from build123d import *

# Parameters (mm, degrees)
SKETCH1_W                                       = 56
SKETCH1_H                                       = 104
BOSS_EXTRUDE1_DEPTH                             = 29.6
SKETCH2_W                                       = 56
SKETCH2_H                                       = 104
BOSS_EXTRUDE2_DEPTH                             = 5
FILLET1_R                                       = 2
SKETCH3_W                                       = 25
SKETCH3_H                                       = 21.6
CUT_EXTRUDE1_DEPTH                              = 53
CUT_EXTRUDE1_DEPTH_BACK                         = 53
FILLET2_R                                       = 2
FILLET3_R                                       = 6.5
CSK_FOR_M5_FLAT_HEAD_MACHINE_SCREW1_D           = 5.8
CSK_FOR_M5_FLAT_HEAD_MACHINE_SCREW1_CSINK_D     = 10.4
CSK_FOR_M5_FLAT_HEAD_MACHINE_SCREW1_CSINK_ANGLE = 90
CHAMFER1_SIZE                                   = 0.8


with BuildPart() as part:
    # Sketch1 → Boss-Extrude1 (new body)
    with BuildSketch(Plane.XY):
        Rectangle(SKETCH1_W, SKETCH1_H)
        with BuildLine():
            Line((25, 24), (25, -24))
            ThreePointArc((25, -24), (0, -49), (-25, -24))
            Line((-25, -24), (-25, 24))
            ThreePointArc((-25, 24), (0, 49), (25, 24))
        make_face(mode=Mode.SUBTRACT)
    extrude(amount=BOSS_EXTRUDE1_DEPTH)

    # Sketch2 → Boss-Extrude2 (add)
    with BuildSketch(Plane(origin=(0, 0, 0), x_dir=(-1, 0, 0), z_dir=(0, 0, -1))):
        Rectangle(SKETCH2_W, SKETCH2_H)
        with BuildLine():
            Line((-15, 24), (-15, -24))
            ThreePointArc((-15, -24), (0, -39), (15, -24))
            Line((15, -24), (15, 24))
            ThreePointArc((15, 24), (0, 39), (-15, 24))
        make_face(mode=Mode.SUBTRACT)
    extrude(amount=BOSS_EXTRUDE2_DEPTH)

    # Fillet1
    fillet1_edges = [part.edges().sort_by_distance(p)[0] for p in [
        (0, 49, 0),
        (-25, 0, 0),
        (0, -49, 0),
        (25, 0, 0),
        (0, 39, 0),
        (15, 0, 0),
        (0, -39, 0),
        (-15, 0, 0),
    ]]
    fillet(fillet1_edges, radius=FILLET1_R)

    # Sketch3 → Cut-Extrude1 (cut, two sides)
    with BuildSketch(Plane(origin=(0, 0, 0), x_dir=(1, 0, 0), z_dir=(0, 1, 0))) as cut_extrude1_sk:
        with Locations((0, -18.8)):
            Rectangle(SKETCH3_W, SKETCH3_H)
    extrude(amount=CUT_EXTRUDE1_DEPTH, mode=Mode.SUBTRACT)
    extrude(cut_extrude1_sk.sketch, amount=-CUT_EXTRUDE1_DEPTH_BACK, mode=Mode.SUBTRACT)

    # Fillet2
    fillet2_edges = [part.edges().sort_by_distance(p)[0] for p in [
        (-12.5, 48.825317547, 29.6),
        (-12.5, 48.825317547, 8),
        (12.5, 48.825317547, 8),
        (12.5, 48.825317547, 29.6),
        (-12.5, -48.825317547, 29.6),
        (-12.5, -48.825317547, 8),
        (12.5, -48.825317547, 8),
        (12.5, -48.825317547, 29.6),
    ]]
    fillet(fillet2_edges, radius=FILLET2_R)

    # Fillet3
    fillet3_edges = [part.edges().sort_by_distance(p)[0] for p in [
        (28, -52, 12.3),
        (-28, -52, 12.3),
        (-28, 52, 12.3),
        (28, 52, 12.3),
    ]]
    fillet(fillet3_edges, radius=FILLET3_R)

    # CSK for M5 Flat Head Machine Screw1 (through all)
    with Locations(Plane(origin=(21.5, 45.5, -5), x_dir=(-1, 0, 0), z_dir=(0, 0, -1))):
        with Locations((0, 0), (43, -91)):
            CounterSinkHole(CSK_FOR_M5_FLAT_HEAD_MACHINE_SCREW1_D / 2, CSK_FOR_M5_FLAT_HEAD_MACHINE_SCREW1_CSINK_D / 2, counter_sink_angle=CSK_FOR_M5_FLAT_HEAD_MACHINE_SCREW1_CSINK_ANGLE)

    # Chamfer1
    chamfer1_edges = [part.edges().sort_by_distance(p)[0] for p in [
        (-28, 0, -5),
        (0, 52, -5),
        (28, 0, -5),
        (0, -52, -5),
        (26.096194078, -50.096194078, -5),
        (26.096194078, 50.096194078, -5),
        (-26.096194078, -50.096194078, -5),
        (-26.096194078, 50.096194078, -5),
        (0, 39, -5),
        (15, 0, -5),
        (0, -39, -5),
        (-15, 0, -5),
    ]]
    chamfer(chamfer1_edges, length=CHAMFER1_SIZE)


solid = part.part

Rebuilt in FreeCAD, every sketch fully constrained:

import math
import FreeCAD as App
import Part
import Sketcher

V = App.Vector


def edges_at(feature, points):
    """Names of the edges that pass closest to the given points."""
    edges = feature.Shape.Edges
    near = lambda p: min(range(len(edges)), key=lambda i: edges[i].distToShape(Part.Vertex(*p))[0])
    return sorted({f"Edge{near(p) + 1}" for p in points})

doc = App.newDocument("Part")
body = doc.addObject("PartDesign::Body", "Body")

# Sketch on XY plane
sketch1 = body.newObject("Sketcher::SketchObject", "Sketch")
sketch1.AttachmentSupport = (doc.getObject("XY_Plane"), [""])
sketch1.MapMode = "FlatFace"
sketch1.addGeometry(Part.LineSegment(V(-28, 52, 0), V(-28, -52, 0)), False)
sketch1.addGeometry(Part.LineSegment(V(-28, -52, 0), V(28, -52, 0)), False)
sketch1.addGeometry(Part.LineSegment(V(28, -52, 0), V(28, 52, 0)), False)
sketch1.addGeometry(Part.LineSegment(V(28, 52, 0), V(-28, 52, 0)), False)
sketch1.addGeometry(Part.ArcOfCircle(Part.Circle(V(0, 24, 0), V(0, 0, 1), 25), math.radians(0), math.radians(180)), False)
sketch1.addGeometry(Part.LineSegment(V(25, 24, 0), V(25, -24, 0)), False)
sketch1.addGeometry(Part.ArcOfCircle(Part.Circle(V(0, -24, 0), V(0, 0, 1), 25), math.radians(180), math.radians(360)), False)
sketch1.addGeometry(Part.LineSegment(V(-25, -24, 0), V(-25, 24, 0)), False)
sketch1.addConstraint(Sketcher.Constraint("Coincident", 0, 2, 1, 1))
sketch1.addConstraint(Sketcher.Constraint("Coincident", 1, 2, 2, 1))
sketch1.addConstraint(Sketcher.Constraint("Coincident", 2, 2, 3, 1))
sketch1.addConstraint(Sketcher.Constraint("Coincident", 3, 2, 0, 1))
sketch1.addConstraint(Sketcher.Constraint("Tangent", 4, 1, 5, 1))
sketch1.addConstraint(Sketcher.Constraint("Tangent", 5, 2, 6, 2))
sketch1.addConstraint(Sketcher.Constraint("Tangent", 6, 1, 7, 1))
sketch1.addConstraint(Sketcher.Constraint("Tangent", 7, 2, 4, 2))
sketch1.addConstraint(Sketcher.Constraint("Vertical", 0))
sketch1.addConstraint(Sketcher.Constraint("Horizontal", 1))
sketch1.addConstraint(Sketcher.Constraint("Vertical", 2))
sketch1.addConstraint(Sketcher.Constraint("Horizontal", 3))
sketch1.addConstraint(Sketcher.Constraint("Vertical", 5))
sketch1.addConstraint(Sketcher.Constraint("Vertical", 7))
sketch1.addConstraint(Sketcher.Constraint("Symmetric", 4, 3, 6, 3, -1, 1))
sketch1.addConstraint(Sketcher.Constraint("Symmetric", 0, 2, 2, 2, -1, 1))
sketch1.addConstraint(Sketcher.Constraint("Radius", 4, 25.0))
sketch1.addConstraint(Sketcher.Constraint("DistanceX", 1, 1, 1, 2, 56.0))
sketch1.addConstraint(Sketcher.Constraint("DistanceY", 0, 2, 0, 1, 104.0))
sketch1.addConstraint(Sketcher.Constraint("DistanceY", 5, 2, 5, 1, 48.0))
pad1 = body.newObject("PartDesign::Pad", "Pad")
pad1.Profile = sketch1
pad1.Length = 29.6

# Sketch on XY plane
sketch2 = body.newObject("Sketcher::SketchObject", "Sketch001")
sketch2.AttachmentSupport = (doc.getObject("XY_Plane"), [""])
sketch2.MapMode = "FlatFace"
sketch2.addGeometry(Part.LineSegment(V(28, 52, 0), V(28, -52, 0)), False)
sketch2.addGeometry(Part.LineSegment(V(28, -52, 0), V(-28, -52, 0)), False)
sketch2.addGeometry(Part.LineSegment(V(-28, -52, 0), V(-28, 52, 0)), False)
sketch2.addGeometry(Part.LineSegment(V(-28, 52, 0), V(28, 52, 0)), False)
sketch2.addGeometry(Part.LineSegment(V(15, -24, 0), V(15, 24, 0)), False)
sketch2.addGeometry(Part.ArcOfCircle(Part.Circle(V(0, 24, 0), V(0, 0, 1), 15), math.radians(0), math.radians(180)), False)
sketch2.addGeometry(Part.LineSegment(V(-15, 24, 0), V(-15, -24, 0)), False)
sketch2.addGeometry(Part.ArcOfCircle(Part.Circle(V(0, -24, 0), V(0, 0, 1), 15), math.radians(180), math.radians(360)), False)
sketch2.addConstraint(Sketcher.Constraint("Coincident", 0, 2, 1, 1))
sketch2.addConstraint(Sketcher.Constraint("Coincident", 1, 2, 2, 1))
sketch2.addConstraint(Sketcher.Constraint("Coincident", 2, 2, 3, 1))
sketch2.addConstraint(Sketcher.Constraint("Coincident", 3, 2, 0, 1))
sketch2.addConstraint(Sketcher.Constraint("Tangent", 4, 2, 5, 1))
sketch2.addConstraint(Sketcher.Constraint("Tangent", 5, 2, 6, 1))
sketch2.addConstraint(Sketcher.Constraint("Tangent", 6, 2, 7, 1))
sketch2.addConstraint(Sketcher.Constraint("Tangent", 7, 2, 4, 1))
sketch2.addConstraint(Sketcher.Constraint("Vertical", 0))
sketch2.addConstraint(Sketcher.Constraint("Horizontal", 1))
sketch2.addConstraint(Sketcher.Constraint("Vertical", 2))
sketch2.addConstraint(Sketcher.Constraint("Horizontal", 3))
sketch2.addConstraint(Sketcher.Constraint("Vertical", 4))
sketch2.addConstraint(Sketcher.Constraint("Vertical", 6))
sketch2.addConstraint(Sketcher.Constraint("Symmetric", 5, 3, 7, 3, -1, 1))
sketch2.addConstraint(Sketcher.Constraint("Symmetric", 0, 2, 2, 2, -1, 1))
sketch2.addConstraint(Sketcher.Constraint("Radius", 5, 15.0))
sketch2.addConstraint(Sketcher.Constraint("DistanceX", 1, 2, 1, 1, 56.0))
sketch2.addConstraint(Sketcher.Constraint("DistanceY", 0, 2, 0, 1, 104.0))
sketch2.addConstraint(Sketcher.Constraint("DistanceY", 4, 1, 4, 2, 48.0))
pad2 = body.newObject("PartDesign::Pad", "Pad001")
pad2.Profile = sketch2
pad2.Length = 5
pad2.Reversed = True
doc.recompute()

fillet = body.newObject("PartDesign::Fillet", "Fillet")
fillet.Base = (pad2, edges_at(pad2, [
    (0, 49, 0),
    (-25, 0, 0),
    (0, -49, 0),
    (25, 0, 0),
    (0, 39, 0),
    (15, 0, 0),
    (0, -39, 0),
    (-15, 0, 0),
]))
fillet.Radius = 2

# Sketch on XZ plane
sketch3 = body.newObject("Sketcher::SketchObject", "Sketch002")
sketch3.AttachmentSupport = (doc.getObject("XZ_Plane"), [""])
sketch3.MapMode = "FlatFace"
sketch3.addGeometry(Part.LineSegment(V(-12, 8, 0), V(-12, 30, 0)), False)
sketch3.addGeometry(Part.LineSegment(V(-12, 30, 0), V(12, 30, 0)), False)
sketch3.addGeometry(Part.LineSegment(V(12, 30, 0), V(12, 8, 0)), False)
sketch3.addGeometry(Part.LineSegment(V(12, 8, 0), V(-12, 8, 0)), False)
sketch3.addConstraint(Sketcher.Constraint("Coincident", 0, 2, 1, 1))
sketch3.addConstraint(Sketcher.Constraint("Coincident", 1, 2, 2, 1))
sketch3.addConstraint(Sketcher.Constraint("Coincident", 2, 2, 3, 1))
sketch3.addConstraint(Sketcher.Constraint("Coincident", 3, 2, 0, 1))
sketch3.addConstraint(Sketcher.Constraint("Vertical", 0))
sketch3.addConstraint(Sketcher.Constraint("Horizontal", 1))
sketch3.addConstraint(Sketcher.Constraint("Vertical", 2))
sketch3.addConstraint(Sketcher.Constraint("Horizontal", 3))
sketch3.addConstraint(Sketcher.Constraint("DistanceX", 1, 1, 1, 2, 25.0))
sketch3.addConstraint(Sketcher.Constraint("DistanceY", 0, 1, 0, 2, 21.6))
sketch3.addConstraint(Sketcher.Constraint("DistanceY", -1, 1, 2, 2, 8.0))
sketch3.addConstraint(Sketcher.Constraint("DistanceX", 0, 2, -1, 1, 12.5))
pocket1 = body.newObject("PartDesign::Pocket", "Pocket")
pocket1.Profile = sketch3
pocket1.Type = "ThroughAll"
pocket1.Midplane = True
doc.recompute()

fillet2 = body.newObject("PartDesign::Fillet", "Fillet001")
fillet2.Base = (pocket1, edges_at(pocket1, [
    (-12.5, 48.825, 29.6),
    (-12.5, 48.825, 8),
    (12.5, 48.825, 8),
    (12.5, 48.825, 29.6),
    (-12.5, -48.825, 29.6),
    (-12.5, -48.825, 8),
    (12.5, -48.825, 8),
    (12.5, -48.825, 29.6),
]))
fillet2.Radius = 2
doc.recompute()

fillet3 = body.newObject("PartDesign::Fillet", "Fillet002")
fillet3.Base = (fillet2, edges_at(fillet2, [
    (28, -52, 12.3),
    (-28, -52, 12.3),
    (-28, 52, 12.3),
    (28, 52, 12.3),
]))
fillet3.Radius = 6.5

# Sketch on XY plane
sketch4 = body.newObject("Sketcher::SketchObject", "Sketch003")
sketch4.AttachmentSupport = (doc.getObject("XY_Plane"), [""])
sketch4.MapMode = "FlatFace"
sketch4.AttachmentOffset = App.Placement(V(0, 0, -5), App.Rotation())
sketch4.addGeometry(Part.Circle(V(21.5, 45.5, 0), V(0, 0, 1), 2.9), False)
sketch4.addGeometry(Part.Circle(V(-21.5, -45.5, 0), V(0, 0, 1), 2.9), False)
sketch4.addConstraint(Sketcher.Constraint("Equal", 0, 1))
sketch4.addConstraint(Sketcher.Constraint("Symmetric", 0, 3, 1, 3, -1, 1))
sketch4.addConstraint(Sketcher.Constraint("Diameter", 0, 5.8))
sketch4.addConstraint(Sketcher.Constraint("DistanceX", 1, 3, 0, 3, 43.0))
sketch4.addConstraint(Sketcher.Constraint("DistanceY", 1, 3, 0, 3, 91.0))
doc.recompute()
hole = body.newObject("PartDesign::Hole", "Hole")
hole.Profile = sketch4
hole.ThreadType = "None"
hole.Diameter = 5.8
hole.DepthType = "ThroughAll"
hole.HoleCutType = "Countersink"
hole.HoleCutDiameter = 10.4
hole.HoleCutCountersinkAngle = 90
hole.Reversed = True
doc.recompute()

chamfer = body.newObject("PartDesign::Chamfer", "Chamfer")
chamfer.Base = (hole, edges_at(hole, [
    (-28, 0, -5),
    (0, 52, -5),
    (28, 0, -5),
    (0, -52, -5),
    (26.096, -50.096, -5),
    (26.096, 50.096, -5),
    (-26.096, -50.096, -5),
    (-26.096, 50.096, -5),
    (0, 39, -5),
    (15, 0, -5),
    (0, -39, -5),
    (-15, 0, -5),
]))
chamfer.Size = 0.8

doc.recompute()
